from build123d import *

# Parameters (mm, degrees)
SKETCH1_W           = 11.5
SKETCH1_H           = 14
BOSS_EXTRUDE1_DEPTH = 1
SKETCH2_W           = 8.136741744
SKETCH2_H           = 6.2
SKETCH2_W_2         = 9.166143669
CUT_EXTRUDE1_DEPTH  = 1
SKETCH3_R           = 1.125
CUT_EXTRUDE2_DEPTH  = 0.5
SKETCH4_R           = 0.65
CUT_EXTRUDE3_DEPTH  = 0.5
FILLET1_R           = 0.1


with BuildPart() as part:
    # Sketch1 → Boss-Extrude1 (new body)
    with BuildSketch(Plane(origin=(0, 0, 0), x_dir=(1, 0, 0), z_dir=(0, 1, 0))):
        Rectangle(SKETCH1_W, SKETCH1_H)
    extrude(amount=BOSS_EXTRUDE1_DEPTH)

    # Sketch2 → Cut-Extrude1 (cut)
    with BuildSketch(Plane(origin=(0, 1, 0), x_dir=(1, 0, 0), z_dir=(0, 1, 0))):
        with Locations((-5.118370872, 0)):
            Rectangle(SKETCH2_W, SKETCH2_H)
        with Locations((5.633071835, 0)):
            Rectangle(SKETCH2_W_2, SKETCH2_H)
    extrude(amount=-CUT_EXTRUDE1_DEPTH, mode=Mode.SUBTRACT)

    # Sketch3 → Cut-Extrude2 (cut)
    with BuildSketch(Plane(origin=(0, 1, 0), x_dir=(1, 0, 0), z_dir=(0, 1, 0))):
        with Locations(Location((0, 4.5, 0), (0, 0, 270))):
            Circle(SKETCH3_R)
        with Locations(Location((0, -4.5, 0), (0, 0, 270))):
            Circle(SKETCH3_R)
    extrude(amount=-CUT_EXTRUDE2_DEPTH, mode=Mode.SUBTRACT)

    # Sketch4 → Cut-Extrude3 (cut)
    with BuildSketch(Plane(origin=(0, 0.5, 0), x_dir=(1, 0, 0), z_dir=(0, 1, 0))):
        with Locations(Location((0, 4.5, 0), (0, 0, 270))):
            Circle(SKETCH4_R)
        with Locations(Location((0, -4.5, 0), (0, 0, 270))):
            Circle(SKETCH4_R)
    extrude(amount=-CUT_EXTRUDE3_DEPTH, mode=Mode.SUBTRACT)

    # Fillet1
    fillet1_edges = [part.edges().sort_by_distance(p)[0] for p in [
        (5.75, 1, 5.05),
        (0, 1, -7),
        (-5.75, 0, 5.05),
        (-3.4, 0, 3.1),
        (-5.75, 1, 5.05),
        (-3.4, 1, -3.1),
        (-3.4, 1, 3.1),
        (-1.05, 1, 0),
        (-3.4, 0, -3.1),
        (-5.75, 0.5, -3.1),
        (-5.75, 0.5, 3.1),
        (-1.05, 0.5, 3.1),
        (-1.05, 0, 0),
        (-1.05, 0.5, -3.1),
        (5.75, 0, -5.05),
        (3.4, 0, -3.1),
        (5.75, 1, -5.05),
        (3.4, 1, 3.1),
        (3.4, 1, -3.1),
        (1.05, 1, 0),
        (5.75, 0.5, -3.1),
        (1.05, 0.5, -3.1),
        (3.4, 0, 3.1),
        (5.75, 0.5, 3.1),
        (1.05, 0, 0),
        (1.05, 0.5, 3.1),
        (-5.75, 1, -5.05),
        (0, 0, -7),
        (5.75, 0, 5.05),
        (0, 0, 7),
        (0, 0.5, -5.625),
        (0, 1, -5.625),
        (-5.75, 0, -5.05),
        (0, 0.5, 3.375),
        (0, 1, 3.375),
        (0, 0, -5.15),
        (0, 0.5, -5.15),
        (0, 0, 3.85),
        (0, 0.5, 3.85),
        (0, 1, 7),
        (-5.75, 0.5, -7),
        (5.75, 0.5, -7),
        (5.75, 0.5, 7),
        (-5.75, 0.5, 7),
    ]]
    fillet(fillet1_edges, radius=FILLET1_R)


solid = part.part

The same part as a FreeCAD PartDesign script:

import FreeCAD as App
import Part
import Sketcher

V = App.Vector
Q = App.Units.Quantity

doc = App.newDocument("Part")
body = doc.addObject("PartDesign::Body", "Body")

# Sketch on XZ plane
sketch1 = body.newObject("Sketcher::SketchObject", "Sketch")
sketch1.AttachmentSupport = (doc.getObject("XZ_Plane"), [""])
sketch1.MapMode = "FlatFace"
sketch1.addGeometry(Part.LineSegment(V(-5.75, -7, 0), V(-5.75, 7, 0)), False)
sketch1.addGeometry(Part.LineSegment(V(-5.75, 7, 0), V(5.75, 7, 0)), False)
sketch1.addGeometry(Part.LineSegment(V(5.75, 7, 0), V(5.75, -7, 0)), False)
sketch1.addGeometry(Part.LineSegment(V(5.75, -7, 0), V(-5.75, -7, 0)), False)
sketch1.addConstraint(Sketcher.Constraint("Coincident", 0, 2, 1, 1))
sketch1.addConstraint(Sketcher.Constraint("Coincident", 1, 2, 2, 1))
sketch1.addConstraint(Sketcher.Constraint("Coincident", 2, 2, 3, 1))
sketch1.addConstraint(Sketcher.Constraint("Coincident", 3, 2, 0, 1))
sketch1.addConstraint(Sketcher.Constraint("Vertical", 0))
sketch1.addConstraint(Sketcher.Constraint("Horizontal", 1))
sketch1.addConstraint(Sketcher.Constraint("Vertical", 2))
sketch1.addConstraint(Sketcher.Constraint("Horizontal", 3))
sketch1.addConstraint(Sketcher.Constraint("Symmetric", 0, 2, 2, 2, -1, 1))
sketch1.addConstraint(Sketcher.Constraint("DistanceY", 0, 1, 0, 2, Q("14 mm")))
sketch1.addConstraint(Sketcher.Constraint("DistanceX", 1, 1, 1, 2, Q("11.5 mm")))
pad1 = body.newObject("PartDesign::Pad", "Pad")
pad1.Profile = sketch1
pad1.Length = 1
pad1.Reversed = True

# Sketch on XZ plane
sketch2 = body.newObject("Sketcher::SketchObject", "Sketch001")
sketch2.AttachmentSupport = (doc.getObject("XZ_Plane"), [""])
sketch2.MapMode = "FlatFace"
sketch2.AttachmentOffset = App.Placement(V(0, 0, -1), App.Rotation())
sketch2.addGeometry(Part.LineSegment(V(-9.186742, -3.1, 0), V(-9.186742, 3.1, 0)), False)
sketch2.addGeometry(Part.LineSegment(V(-9.186742, 3.1, 0), V(-1.05, 3.1, 0)), False)
sketch2.addGeometry(Part.LineSegment(V(-1.05, 3.1, 0), V(-1.05, -3.1, 0)), False)
sketch2.addGeometry(Part.LineSegment(V(-1.05, -3.1, 0), V(-9.186742, -3.1, 0)), False)
sketch2.addGeometry(Part.LineSegment(V(1.05, -3.1, 0), V(1.05, 3.1, 0)), False)
sketch2.addGeometry(Part.LineSegment(V(1.05, 3.1, 0), V(10.216144, 3.1, 0)), False)
sketch2.addGeometry(Part.LineSegment(V(10.216144, 3.1, 0), V(10.216144, -3.1, 0)), False)
sketch2.addGeometry(Part.LineSegment(V(10.216144, -3.1, 0), V(1.05, -3.1, 0)), False)
sketch2.addConstraint(Sketcher.Constraint("Coincident", 0, 2, 1, 1))
sketch2.addConstraint(Sketcher.Constraint("Coincident", 1, 2, 2, 1))
sketch2.addConstraint(Sketcher.Constraint("Coincident", 2, 2, 3, 1))
sketch2.addConstraint(Sketcher.Constraint("Coincident", 3, 2, 0, 1))
sketch2.addConstraint(Sketcher.Constraint("Coincident", 4, 2, 5, 1))
sketch2.addConstraint(Sketcher.Constraint("Coincident", 5, 2, 6, 1))
sketch2.addConstraint(Sketcher.Constraint("Coincident", 6, 2, 7, 1))
sketch2.addConstraint(Sketcher.Constraint("Coincident", 7, 2, 4, 1))
sketch2.addConstraint(Sketcher.Constraint("Vertical", 0))
sketch2.addConstraint(Sketcher.Constraint("Horizontal", 1))
sketch2.addConstraint(Sketcher.Constraint("Vertical", 2))
sketch2.addConstraint(Sketcher.Constraint("Horizontal", 3))
sketch2.addConstraint(Sketcher.Constraint("Vertical", 4))
sketch2.addConstraint(Sketcher.Constraint("Horizontal", 5))
sketch2.addConstraint(Sketcher.Constraint("Vertical", 6))
sketch2.addConstraint(Sketcher.Constraint("Horizontal", 7))
sketch2.addConstraint(Sketcher.Constraint("Symmetric", 2, 2, 4, 2, -1, 1))
sketch2.addConstraint(Sketcher.Constraint("Horizontal", 1, 2, 4, 2))
sketch2.addConstraint(Sketcher.Constraint("Horizontal", 3, 2, 6, 2))
sketch2.addConstraint(Sketcher.Constraint("DistanceY", 0, 1, 0, 2, Q("6.2 mm")))
sketch2.addConstraint(Sketcher.Constraint("DistanceX", 1, 2, 4, 2, Q("2.1 mm")))
sketch2.addConstraint(Sketcher.Constraint("DistanceX", 1, 1, 1, 2, Q("8.136742 mm")))
sketch2.addConstraint(Sketcher.Constraint("DistanceX", 5, 1, 5, 2, Q("9.166144 mm")))
pocket1 = body.newObject("PartDesign::Pocket", "Pocket")
pocket1.Profile = sketch2
pocket1.Length = 1
pocket1.Reversed = True

# Sketch on XZ plane
sketch3 = body.newObject("Sketcher::SketchObject", "Sketch002")
sketch3.AttachmentSupport = (doc.getObject("XZ_Plane"), [""])
sketch3.MapMode = "FlatFace"
sketch3.AttachmentOffset = App.Placement(V(0, 0, -1), App.Rotation())
sketch3.addGeometry(Part.Circle(V(0, -4.5, 0), V(0, 0, 1), 1.125), False)
sketch3.addGeometry(Part.Circle(V(0, 4.5, 0), V(0, 0, 1), 1.125), False)
sketch3.addConstraint(Sketcher.Constraint("Equal", 0, 1))
sketch3.addConstraint(Sketcher.Constraint("Symmetric", 0, 3, 1, 3, -1, 1))
sketch3.addConstraint(Sketcher.Constraint("PointOnObject", 0, 3, -2))
sketch3.addConstraint(Sketcher.Constraint("Diameter", 0, Q("2.25 mm")))
sketch3.addConstraint(Sketcher.Constraint("DistanceY", 0, 3, 1, 3, Q("9 mm")))
pocket2 = body.newObject("PartDesign::Pocket", "Pocket001")
pocket2.Profile = sketch3
pocket2.Length = 0.5
pocket2.Reversed = True

# Sketch on XZ plane
sketch4 = body.newObject("Sketcher::SketchObject", "Sketch003")
sketch4.AttachmentSupport = (doc.getObject("XZ_Plane"), [""])
sketch4.MapMode = "FlatFace"
sketch4.AttachmentOffset = App.Placement(V(0, 0, -0.5), App.Rotation())
sketch4.addGeometry(Part.Circle(V(0, -4.5, 0), V(0, 0, 1), 0.65), False)
sketch4.addGeometry(Part.Circle(V(0, 4.5, 0), V(0, 0, 1), 0.65), False)
sketch4.addConstraint(Sketcher.Constraint("Equal", 0, 1))
sketch4.addConstraint(Sketcher.Constraint("Symmetric", 0, 3, 1, 3, -1, 1))
sketch4.addConstraint(Sketcher.Constraint("PointOnObject", 0, 3, -2))
sketch4.addConstraint(Sketcher.Constraint("Diameter", 0, Q("1.3 mm")))
sketch4.addConstraint(Sketcher.Constraint("DistanceY", 0, 3, 1, 3, Q("9 mm")))
pocket3 = body.newObject("PartDesign::Pocket", "Pocket002")
pocket3.Profile = sketch4
pocket3.Length = 0.5
pocket3.Reversed = True
doc.recompute()

fillet = body.newObject("PartDesign::Fillet", "Fillet")
fillet.Base = (pocket3, ["Edge1"])
fillet.UseAllEdges = True
fillet.Radius = 0.1

doc.recompute()
